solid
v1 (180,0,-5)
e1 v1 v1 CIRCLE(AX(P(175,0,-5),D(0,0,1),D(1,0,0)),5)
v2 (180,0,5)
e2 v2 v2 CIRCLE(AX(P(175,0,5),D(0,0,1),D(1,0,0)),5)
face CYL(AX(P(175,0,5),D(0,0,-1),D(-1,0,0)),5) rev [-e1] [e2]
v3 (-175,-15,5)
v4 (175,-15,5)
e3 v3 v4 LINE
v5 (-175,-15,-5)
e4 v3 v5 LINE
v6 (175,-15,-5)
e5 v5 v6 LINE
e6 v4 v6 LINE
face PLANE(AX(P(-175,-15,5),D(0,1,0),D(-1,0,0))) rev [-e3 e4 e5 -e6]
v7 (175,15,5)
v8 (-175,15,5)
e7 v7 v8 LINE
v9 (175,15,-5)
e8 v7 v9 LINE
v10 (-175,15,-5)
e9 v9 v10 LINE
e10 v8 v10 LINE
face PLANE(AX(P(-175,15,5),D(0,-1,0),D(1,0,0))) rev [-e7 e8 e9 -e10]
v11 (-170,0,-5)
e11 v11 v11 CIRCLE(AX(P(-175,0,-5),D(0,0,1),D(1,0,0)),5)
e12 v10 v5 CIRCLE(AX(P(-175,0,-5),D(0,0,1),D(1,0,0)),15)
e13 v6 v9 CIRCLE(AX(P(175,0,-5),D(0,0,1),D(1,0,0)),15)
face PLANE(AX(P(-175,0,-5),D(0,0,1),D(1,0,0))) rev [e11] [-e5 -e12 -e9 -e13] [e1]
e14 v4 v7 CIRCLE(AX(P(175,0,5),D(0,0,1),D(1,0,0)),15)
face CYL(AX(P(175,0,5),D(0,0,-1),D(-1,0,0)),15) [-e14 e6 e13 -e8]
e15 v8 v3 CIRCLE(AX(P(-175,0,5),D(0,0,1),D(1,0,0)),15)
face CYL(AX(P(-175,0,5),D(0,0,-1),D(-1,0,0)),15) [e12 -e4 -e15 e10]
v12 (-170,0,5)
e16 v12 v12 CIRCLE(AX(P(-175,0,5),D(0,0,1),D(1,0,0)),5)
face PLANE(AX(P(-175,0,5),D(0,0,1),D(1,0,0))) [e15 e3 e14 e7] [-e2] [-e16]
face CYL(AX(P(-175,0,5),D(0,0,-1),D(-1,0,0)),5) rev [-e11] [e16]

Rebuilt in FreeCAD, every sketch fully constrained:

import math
import FreeCAD as App
import Part
import Sketcher
from FreeCAD import Vector

doc = App.newDocument("Part")
body = doc.addObject("PartDesign::Body", "Body")

sketch1 = body.newObject("Sketcher::SketchObject", "Sketch")
sketch1.AttachmentSupport = (doc.getObject("XY_Plane"), [""])
sketch1.MapMode = "FlatFace"
sketch1.addGeometry([
    Part.LineSegment(Vector(175, 15, 0), Vector(-175, 15, 0)),
    Part.ArcOfCircle(Part.Circle(Vector(-175, 0, 0), Vector(0, 0, 1), 15), math.radians(90), math.radians(270)),
    Part.LineSegment(Vector(-175, -15, 0), Vector(175, -15, 0)),
    Part.ArcOfCircle(Part.Circle(Vector(175, 0, 0), Vector(0, 0, 1), 15), math.radians(-90), math.radians(90)),
    Part.Circle(Vector(175, 0, 0), Vector(0, 0, 1), 5),
    Part.Circle(Vector(-175, 0, 0), Vector(0, 0, 1), 5),
], False)
sketch1.addConstraint([
    Sketcher.Constraint("Tangent", 0, 2, 1, 1),
    Sketcher.Constraint("Tangent", 1, 2, 2, 1),
    Sketcher.Constraint("Tangent", 2, 2, 3, 1),
    Sketcher.Constraint("Tangent", 3, 2, 0, 1),
    Sketcher.Constraint("Horizontal", 0),
    Sketcher.Constraint("Horizontal", 2),
    Sketcher.Constraint("Coincident", 4, 3, 3, 3),
    Sketcher.Constraint("Coincident", 5, 3, 1, 3),
    Sketcher.Constraint("Equal", 4, 5),
    Sketcher.Constraint("Symmetric", 1, 3, 3, 3, -1, 1),
    Sketcher.Constraint("Diameter", 4, 10.0),
    Sketcher.Constraint("Radius", 1, 15.0),
    Sketcher.Constraint("DistanceX", 0, 2, 0, 1, 350.0),
])
pad1 = body.newObject("PartDesign::Pad", "Pad")
pad1.Profile = sketch1
pad1.Length = 10
pad1.Midplane = True

doc.recompute()
